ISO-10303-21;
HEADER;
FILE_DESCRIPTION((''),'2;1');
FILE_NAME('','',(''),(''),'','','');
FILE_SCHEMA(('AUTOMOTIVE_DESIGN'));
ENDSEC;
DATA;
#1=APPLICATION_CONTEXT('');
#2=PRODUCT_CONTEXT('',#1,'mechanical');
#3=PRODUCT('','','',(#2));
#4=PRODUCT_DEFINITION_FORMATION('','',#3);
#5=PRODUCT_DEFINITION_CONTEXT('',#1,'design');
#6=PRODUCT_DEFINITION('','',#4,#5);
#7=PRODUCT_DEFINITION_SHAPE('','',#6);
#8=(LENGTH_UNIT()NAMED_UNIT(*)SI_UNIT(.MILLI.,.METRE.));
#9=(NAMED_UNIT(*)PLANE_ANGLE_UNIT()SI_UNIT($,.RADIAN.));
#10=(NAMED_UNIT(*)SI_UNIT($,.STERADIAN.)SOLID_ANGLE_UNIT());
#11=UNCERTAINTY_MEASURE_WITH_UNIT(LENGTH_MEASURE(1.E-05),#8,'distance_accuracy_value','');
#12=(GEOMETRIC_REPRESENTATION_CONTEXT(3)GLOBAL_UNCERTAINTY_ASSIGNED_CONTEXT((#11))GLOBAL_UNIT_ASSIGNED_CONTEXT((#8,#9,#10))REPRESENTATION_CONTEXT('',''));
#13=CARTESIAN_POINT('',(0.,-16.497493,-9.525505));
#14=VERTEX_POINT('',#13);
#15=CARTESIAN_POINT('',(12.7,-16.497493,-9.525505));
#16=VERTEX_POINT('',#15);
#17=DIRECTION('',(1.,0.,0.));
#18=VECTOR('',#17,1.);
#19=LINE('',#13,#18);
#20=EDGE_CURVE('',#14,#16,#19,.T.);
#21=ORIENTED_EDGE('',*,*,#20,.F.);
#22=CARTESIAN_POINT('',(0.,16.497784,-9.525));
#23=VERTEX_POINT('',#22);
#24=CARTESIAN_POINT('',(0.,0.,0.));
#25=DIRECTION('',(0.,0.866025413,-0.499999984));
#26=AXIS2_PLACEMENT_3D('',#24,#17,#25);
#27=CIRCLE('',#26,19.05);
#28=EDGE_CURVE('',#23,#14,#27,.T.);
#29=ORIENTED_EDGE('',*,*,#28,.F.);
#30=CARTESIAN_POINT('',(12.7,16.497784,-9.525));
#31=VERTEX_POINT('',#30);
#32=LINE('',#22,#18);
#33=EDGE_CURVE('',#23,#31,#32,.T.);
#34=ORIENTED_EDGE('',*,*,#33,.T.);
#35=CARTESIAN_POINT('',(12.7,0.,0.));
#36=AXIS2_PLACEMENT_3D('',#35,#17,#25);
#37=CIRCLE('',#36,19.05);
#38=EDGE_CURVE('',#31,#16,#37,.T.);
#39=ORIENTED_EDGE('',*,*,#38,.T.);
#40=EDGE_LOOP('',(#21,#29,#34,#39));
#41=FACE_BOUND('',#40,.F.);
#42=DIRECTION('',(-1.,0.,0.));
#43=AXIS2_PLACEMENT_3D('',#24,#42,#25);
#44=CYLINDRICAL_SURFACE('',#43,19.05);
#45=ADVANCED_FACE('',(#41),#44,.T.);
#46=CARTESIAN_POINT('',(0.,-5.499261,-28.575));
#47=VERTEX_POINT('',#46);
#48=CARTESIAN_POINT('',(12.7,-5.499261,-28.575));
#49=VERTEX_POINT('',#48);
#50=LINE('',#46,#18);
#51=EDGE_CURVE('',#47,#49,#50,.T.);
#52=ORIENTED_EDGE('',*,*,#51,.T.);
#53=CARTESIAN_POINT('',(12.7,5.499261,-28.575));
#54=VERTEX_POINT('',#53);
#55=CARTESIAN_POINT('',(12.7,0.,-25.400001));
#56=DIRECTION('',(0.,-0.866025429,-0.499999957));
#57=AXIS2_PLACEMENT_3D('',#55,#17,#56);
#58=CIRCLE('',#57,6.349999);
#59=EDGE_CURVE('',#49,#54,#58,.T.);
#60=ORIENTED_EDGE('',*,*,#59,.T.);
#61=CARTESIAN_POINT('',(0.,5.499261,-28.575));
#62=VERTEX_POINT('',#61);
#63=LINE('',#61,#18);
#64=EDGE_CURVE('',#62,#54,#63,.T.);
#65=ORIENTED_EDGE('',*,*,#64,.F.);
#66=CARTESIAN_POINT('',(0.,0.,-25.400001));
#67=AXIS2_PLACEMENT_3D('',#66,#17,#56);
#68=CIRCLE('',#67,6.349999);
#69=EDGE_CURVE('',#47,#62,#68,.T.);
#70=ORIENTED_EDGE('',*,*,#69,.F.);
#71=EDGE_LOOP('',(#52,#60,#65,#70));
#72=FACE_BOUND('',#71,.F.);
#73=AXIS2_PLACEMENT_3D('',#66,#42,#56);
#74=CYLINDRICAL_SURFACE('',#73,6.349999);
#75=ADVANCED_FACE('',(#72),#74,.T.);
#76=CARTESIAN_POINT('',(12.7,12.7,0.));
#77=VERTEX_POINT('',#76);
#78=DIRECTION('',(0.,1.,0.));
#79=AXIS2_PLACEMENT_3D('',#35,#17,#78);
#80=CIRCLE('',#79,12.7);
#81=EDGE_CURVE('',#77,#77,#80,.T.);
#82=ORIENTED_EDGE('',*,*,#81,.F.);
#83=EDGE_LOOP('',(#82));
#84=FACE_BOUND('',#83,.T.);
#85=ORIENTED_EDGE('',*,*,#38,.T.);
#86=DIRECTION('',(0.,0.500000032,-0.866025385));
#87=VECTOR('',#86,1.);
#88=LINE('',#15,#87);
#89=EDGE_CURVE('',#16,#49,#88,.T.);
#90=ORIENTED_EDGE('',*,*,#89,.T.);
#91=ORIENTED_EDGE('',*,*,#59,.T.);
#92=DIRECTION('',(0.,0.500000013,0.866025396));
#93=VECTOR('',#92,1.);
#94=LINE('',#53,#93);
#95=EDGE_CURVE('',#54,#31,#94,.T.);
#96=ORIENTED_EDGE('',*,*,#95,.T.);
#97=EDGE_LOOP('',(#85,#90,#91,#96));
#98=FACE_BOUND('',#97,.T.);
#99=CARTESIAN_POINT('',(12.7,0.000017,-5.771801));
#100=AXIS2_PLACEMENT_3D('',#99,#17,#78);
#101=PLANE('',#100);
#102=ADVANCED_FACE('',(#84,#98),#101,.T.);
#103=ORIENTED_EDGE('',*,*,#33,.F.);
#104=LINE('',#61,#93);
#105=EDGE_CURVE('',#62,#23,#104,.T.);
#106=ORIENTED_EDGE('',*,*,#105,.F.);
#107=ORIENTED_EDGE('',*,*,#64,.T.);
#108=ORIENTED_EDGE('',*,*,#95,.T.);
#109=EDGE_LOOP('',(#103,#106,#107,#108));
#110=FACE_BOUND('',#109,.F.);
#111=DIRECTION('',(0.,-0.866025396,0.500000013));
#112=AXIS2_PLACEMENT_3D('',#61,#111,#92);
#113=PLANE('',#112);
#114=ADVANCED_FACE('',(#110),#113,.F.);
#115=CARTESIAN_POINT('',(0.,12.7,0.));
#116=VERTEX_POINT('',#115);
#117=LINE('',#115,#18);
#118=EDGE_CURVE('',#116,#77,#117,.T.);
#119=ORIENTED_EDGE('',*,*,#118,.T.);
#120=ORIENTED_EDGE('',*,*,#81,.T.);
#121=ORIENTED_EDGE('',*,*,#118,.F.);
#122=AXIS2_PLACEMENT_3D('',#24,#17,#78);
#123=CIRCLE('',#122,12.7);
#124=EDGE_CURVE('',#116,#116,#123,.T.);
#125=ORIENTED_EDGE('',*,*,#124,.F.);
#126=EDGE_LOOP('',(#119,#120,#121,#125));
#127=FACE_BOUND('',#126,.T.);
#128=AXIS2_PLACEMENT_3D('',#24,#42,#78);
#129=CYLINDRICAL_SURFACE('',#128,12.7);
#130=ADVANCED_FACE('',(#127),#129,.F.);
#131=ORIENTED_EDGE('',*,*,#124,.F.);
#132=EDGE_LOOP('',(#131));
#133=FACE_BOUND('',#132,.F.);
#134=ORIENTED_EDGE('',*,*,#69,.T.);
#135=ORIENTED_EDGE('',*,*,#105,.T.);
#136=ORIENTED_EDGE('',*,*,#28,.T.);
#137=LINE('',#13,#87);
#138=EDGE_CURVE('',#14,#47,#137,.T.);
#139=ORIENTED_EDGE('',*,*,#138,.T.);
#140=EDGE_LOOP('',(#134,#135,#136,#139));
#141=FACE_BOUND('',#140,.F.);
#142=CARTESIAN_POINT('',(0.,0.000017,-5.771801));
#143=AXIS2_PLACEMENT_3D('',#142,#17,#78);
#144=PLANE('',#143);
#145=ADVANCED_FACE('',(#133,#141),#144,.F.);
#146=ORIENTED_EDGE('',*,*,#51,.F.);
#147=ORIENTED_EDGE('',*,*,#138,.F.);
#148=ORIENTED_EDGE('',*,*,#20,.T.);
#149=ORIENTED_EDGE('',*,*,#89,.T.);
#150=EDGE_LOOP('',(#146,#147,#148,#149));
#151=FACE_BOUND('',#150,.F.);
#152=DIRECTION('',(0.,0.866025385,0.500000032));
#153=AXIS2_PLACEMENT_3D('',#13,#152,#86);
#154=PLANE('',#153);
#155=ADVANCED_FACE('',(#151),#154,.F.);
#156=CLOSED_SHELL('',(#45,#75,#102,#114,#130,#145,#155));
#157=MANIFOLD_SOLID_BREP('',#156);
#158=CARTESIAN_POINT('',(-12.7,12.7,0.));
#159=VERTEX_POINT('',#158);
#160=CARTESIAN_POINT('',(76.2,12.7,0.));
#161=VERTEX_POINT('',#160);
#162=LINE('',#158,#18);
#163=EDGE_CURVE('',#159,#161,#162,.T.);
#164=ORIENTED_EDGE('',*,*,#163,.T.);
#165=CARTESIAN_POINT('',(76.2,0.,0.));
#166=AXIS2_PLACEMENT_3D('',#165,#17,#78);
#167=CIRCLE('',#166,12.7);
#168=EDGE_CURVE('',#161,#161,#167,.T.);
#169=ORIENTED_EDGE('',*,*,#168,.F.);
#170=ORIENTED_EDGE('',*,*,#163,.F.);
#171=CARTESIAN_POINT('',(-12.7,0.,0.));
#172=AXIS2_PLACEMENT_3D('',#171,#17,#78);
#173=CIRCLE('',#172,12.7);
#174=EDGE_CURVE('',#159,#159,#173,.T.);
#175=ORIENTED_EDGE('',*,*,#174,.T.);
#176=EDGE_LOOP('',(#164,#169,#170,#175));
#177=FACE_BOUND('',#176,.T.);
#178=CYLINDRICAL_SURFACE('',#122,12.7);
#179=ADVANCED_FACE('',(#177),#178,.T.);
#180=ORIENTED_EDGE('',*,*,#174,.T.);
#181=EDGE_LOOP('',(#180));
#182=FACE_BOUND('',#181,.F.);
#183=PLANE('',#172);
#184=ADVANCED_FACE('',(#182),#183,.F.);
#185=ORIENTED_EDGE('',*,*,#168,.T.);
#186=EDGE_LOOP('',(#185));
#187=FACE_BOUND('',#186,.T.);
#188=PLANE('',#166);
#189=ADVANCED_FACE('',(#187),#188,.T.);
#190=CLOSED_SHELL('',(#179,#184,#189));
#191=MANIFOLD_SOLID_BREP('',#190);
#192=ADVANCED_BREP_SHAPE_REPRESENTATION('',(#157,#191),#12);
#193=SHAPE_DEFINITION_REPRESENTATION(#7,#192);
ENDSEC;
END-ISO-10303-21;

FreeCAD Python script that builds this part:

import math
import FreeCAD as App
import Part
import Sketcher

V = App.Vector
Q = App.Units.Quantity

doc = App.newDocument("Part")
body = doc.addObject("PartDesign::Body", "Body")

# Sketch on YZ plane
sketch1 = doc.addObject("Sketcher::SketchObject", "Sketch")
body.addObject(sketch1)
sketch1.AttachmentSupport = (doc.YZ_Plane, [""])
sketch1.MapMode = "FlatFace"
sketch1.addGeometry(Part.Circle(V(0, 0, 0), V(0, 0, 1), 13), False)
sketch1.addConstraint([
    Sketcher.Constraint("Coincident", 0, 3, -1, 1),
    Sketcher.Constraint("Diameter", 0, Q("1 in")),
])
pad1 = doc.addObject("PartDesign::Pad", "Pad")
body.addObject(pad1)
pad1.Profile = sketch1
pad1.Type = "TwoLengths"
pad1.Length = Q("3 in")
pad1.Length2 = Q("0.5 in")
body2 = doc.addObject("PartDesign::Body", "Body001")

# Sketch on YZ plane
sketch2 = doc.addObject("Sketcher::SketchObject", "Sketch001")
body2.addObject(sketch2)
sketch2.AttachmentSupport = (doc.getObject("YZ_Plane001"), [""])
sketch2.MapMode = "FlatFace"
sketch2.addGeometry([
    Part.LineSegment(V(5, -29, 0), V(16, -10, 0)),  # 0
    Part.ArcOfCircle(Part.Circle(V(0, 0, 0), V(0, 0, 1), 19), math.radians(-30), math.radians(210)),  # 1
    Part.LineSegment(V(-16, -10, 0), V(-5, -29, 0)),  # 2
    Part.ArcOfCircle(Part.Circle(V(0, -25, 0), V(0, 0, 1), 6), math.radians(-150), math.radians(-30)),  # 3
    Part.Circle(V(0, 0, 0), V(0, 0, 1), 13),  # 4
], False)
sketch2.addConstraint([
    Sketcher.Constraint("Tangent", 0, 2, 1, 1),
    Sketcher.Constraint("Coincident", 1, 2, 2, 1),
    Sketcher.Constraint("Tangent", 2, 2, 3, 1),
    Sketcher.Constraint("Tangent", 3, 2, 0, 1),
    Sketcher.Constraint("Coincident", 1, 3, -1, 1),
    Sketcher.Constraint("Coincident", 4, 3, -1, 1),
    Sketcher.Constraint("PointOnObject", 3, 3, -2),
    Sketcher.Constraint("Diameter", 4, Q("1 in")),
    Sketcher.Constraint("Radius", 1, Q("0.75 in")),
    Sketcher.Constraint("Radius", 3, Q("0.25 in")),
    Sketcher.Constraint("DistanceY", 3, 3, -1, 1, Q("1 in")),
    Sketcher.Constraint("DistanceX", 1, 2, 2, 2, Q("10.998232 mm")),
])
pad2 = doc.addObject("PartDesign::Pad", "Pad001")
body2.addObject(pad2)
pad2.Profile = sketch2
pad2.Length = Q("0.5 in")

doc.recompute()
